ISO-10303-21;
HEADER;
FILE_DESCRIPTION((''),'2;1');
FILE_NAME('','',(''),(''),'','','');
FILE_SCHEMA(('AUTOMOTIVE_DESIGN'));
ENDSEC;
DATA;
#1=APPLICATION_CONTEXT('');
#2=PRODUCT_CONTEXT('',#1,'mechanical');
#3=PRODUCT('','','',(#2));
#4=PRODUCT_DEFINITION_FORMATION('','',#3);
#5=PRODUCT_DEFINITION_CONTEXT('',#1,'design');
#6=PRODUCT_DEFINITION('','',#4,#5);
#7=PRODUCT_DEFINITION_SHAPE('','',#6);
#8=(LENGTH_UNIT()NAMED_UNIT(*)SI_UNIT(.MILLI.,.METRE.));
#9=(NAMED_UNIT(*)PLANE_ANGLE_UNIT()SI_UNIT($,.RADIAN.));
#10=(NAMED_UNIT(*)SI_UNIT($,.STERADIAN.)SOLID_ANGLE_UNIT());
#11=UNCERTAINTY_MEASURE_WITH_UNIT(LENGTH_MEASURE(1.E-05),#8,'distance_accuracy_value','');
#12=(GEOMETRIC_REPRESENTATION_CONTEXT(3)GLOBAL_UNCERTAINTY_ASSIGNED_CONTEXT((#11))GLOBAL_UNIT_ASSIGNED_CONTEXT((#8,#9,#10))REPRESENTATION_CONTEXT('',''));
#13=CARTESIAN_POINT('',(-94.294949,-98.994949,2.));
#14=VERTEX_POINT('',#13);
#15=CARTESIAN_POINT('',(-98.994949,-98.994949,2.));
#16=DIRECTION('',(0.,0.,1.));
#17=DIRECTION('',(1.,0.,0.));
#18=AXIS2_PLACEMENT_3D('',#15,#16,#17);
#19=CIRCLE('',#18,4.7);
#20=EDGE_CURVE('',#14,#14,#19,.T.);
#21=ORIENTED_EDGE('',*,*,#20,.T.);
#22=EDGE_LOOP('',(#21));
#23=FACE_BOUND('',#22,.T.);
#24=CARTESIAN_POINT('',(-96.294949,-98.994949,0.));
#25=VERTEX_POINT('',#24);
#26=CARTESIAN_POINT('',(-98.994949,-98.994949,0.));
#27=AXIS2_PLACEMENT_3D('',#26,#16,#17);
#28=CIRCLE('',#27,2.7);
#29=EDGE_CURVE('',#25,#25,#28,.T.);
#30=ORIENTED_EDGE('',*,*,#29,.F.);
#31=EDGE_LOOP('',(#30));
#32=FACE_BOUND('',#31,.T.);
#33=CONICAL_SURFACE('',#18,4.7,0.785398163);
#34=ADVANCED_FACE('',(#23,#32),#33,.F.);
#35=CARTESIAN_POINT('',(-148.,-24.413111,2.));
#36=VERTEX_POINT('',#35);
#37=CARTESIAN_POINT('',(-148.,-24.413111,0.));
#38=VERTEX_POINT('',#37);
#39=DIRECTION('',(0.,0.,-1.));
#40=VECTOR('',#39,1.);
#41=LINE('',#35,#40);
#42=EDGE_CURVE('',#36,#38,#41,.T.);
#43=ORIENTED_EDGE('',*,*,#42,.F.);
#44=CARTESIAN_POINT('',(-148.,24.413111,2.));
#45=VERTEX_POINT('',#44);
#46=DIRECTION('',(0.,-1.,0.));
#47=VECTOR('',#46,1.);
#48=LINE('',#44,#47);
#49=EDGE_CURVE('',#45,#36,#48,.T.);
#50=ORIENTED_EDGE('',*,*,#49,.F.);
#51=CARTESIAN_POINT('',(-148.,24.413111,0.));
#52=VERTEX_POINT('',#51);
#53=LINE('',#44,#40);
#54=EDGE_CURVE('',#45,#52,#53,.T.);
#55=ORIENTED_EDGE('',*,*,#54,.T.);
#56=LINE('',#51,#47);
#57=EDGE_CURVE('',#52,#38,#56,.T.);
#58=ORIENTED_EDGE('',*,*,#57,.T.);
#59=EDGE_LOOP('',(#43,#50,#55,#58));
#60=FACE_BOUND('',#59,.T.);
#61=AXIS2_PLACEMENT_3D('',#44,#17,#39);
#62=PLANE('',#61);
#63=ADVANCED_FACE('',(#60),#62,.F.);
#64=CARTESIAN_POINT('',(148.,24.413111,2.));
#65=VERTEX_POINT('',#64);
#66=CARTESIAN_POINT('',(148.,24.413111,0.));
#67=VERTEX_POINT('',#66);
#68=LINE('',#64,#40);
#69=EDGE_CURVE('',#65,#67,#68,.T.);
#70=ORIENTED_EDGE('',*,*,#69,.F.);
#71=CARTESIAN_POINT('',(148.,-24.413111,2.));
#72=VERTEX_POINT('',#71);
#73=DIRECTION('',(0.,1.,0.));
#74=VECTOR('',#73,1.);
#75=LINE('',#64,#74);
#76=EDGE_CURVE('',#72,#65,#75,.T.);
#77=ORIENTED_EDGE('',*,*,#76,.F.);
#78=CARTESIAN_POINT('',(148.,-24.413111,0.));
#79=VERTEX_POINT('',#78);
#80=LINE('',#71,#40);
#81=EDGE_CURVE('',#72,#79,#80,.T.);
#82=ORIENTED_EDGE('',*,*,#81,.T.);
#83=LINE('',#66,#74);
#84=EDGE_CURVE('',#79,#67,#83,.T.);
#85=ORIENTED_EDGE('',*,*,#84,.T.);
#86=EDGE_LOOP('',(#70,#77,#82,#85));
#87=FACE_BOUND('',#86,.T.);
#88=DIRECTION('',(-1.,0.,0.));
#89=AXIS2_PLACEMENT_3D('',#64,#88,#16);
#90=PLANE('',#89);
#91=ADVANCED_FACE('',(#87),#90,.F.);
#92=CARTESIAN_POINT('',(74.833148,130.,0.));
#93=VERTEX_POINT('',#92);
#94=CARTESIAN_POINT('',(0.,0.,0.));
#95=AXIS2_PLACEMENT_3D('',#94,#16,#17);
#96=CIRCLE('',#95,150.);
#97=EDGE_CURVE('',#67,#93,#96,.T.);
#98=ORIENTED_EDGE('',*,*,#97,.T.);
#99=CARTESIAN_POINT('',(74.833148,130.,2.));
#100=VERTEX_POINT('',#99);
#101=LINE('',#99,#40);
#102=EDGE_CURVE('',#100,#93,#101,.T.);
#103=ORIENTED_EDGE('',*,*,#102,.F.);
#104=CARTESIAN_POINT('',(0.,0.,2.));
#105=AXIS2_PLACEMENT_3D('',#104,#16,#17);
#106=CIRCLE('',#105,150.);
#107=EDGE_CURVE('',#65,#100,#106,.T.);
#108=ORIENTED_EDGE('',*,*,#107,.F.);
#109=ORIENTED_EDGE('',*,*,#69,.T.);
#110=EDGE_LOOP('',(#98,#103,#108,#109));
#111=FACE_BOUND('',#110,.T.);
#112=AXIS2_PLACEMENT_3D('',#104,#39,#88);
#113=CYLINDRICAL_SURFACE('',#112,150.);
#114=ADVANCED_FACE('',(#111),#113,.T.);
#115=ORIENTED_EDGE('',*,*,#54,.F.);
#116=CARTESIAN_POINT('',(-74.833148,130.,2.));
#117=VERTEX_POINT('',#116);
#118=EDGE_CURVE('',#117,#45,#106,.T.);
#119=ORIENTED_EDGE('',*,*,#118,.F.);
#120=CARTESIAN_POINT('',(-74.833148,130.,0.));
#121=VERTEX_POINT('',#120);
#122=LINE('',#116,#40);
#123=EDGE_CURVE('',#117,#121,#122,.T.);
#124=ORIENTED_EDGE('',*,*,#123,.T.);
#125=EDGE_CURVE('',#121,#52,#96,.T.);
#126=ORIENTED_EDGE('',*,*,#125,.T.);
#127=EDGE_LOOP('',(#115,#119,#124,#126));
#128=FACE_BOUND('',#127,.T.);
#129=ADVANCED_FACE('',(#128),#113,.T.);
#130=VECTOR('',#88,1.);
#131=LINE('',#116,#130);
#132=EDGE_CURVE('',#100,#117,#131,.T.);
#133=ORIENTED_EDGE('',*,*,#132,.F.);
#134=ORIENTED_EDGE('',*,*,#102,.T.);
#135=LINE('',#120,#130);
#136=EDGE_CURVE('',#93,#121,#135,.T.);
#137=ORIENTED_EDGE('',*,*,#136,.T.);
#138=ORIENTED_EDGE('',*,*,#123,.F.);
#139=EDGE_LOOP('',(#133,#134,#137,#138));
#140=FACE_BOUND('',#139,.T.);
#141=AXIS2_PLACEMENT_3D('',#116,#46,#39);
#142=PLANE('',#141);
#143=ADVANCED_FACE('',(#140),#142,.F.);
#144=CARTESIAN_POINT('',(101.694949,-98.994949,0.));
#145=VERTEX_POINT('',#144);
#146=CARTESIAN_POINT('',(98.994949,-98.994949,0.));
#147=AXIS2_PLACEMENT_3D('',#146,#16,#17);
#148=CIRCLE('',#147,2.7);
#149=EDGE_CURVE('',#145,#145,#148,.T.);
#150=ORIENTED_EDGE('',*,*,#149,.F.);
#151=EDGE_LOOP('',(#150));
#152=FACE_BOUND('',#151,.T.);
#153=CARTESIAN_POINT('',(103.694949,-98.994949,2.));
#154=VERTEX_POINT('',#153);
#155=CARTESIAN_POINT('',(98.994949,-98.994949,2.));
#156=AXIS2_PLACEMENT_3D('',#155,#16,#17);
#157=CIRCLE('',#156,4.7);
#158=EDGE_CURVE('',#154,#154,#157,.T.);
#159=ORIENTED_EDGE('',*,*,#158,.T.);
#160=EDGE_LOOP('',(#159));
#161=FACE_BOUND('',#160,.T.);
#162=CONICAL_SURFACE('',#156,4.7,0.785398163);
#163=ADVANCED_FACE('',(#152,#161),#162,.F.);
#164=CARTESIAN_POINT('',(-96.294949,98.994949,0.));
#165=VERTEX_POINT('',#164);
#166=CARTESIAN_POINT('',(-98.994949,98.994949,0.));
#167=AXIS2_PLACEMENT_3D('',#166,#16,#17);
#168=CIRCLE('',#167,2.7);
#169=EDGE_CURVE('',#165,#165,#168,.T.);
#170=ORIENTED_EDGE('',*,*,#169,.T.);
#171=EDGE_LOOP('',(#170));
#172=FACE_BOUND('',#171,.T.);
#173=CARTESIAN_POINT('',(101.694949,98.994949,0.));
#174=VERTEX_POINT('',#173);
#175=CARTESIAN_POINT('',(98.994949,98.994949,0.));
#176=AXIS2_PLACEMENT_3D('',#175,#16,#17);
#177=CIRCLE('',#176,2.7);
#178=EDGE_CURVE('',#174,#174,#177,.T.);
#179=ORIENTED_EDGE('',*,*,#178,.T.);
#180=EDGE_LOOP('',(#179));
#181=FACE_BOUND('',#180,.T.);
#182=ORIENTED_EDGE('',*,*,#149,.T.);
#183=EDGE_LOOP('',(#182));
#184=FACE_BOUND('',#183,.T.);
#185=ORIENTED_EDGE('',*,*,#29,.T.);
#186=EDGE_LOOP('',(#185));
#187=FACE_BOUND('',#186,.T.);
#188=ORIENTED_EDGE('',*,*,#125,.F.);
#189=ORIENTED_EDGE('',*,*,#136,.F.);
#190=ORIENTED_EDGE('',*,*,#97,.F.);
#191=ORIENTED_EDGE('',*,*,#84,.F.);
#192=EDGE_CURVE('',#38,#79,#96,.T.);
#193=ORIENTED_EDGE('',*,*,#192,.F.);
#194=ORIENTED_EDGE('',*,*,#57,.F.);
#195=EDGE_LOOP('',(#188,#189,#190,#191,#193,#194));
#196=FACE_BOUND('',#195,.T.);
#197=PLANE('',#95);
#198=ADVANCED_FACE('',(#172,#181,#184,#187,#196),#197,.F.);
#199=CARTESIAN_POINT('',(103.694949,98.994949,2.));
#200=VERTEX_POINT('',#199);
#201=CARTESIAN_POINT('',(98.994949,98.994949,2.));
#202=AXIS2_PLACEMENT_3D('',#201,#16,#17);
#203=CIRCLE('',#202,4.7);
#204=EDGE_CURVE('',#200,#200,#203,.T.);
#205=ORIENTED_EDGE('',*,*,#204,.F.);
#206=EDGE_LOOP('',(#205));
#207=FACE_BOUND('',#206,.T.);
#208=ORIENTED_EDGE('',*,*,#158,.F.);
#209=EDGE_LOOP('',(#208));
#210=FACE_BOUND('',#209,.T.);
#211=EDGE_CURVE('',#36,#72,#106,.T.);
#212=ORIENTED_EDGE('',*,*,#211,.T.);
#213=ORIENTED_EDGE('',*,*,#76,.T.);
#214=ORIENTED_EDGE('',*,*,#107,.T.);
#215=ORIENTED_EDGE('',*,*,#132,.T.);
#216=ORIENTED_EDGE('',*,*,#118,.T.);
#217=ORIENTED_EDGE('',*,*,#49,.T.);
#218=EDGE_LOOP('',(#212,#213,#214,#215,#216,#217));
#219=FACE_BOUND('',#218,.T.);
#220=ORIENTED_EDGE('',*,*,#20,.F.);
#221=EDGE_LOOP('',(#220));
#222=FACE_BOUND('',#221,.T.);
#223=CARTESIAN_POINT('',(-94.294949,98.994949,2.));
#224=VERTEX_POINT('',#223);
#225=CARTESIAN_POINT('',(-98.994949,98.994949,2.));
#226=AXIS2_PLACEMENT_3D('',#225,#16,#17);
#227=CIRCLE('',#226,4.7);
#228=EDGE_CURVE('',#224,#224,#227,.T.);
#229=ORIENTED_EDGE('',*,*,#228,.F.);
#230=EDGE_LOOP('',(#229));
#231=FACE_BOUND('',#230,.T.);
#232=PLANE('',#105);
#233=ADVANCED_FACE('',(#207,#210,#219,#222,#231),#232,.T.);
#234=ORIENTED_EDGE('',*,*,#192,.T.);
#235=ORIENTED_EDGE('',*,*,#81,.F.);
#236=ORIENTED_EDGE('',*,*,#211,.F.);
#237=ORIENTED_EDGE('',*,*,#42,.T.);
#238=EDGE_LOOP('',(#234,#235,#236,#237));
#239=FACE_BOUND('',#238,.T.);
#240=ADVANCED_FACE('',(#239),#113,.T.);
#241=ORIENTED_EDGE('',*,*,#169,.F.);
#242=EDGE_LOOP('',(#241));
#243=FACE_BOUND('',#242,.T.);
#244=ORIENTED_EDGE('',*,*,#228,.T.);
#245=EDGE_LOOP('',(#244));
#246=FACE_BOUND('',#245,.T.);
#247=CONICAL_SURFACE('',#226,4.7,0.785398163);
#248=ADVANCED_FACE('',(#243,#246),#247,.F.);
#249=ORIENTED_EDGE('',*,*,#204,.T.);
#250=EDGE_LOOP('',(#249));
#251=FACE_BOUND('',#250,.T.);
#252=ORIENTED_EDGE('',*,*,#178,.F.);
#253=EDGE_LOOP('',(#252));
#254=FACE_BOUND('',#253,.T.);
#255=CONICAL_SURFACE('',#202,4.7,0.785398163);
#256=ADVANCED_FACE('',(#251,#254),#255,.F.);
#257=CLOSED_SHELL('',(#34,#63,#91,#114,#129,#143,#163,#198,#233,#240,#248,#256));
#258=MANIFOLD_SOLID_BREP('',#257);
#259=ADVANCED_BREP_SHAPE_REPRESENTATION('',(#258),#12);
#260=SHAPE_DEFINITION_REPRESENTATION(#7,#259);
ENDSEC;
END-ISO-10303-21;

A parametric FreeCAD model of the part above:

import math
import FreeCAD as App
import Part
import Sketcher

V = App.Vector
Q = App.Units.Quantity

doc = App.newDocument("Part")
params = doc.addObject("Spreadsheet::Sheet", "Params")
for row, (alias, value) in enumerate([
    ("sketch1_radius", "150 mm"),
    ("sketch1_diameter", "3.2 mm"),
    ("pad1_length", "2 mm"),
    ("sketch2_height", "2 mm"),
    ("sketch2_width", "4.7 mm"),
    ("sketch2_width2", "2.25 mm"),
    ("groove_angle", "360 deg"),
    ("linearpattern_pitch", "197.989899 mm"),
    ("linearpattern2_pitch", "197.989899 mm"),
    ("linearpattern3_pitch", "280 mm"),
], start=1):
    params.set(f"A{row}", alias)
    params.set(f"B{row}", "=" + value)
    params.setAlias(f"B{row}", alias)

body = doc.addObject("PartDesign::Body", "Body")

sketch1 = body.newObject("Sketcher::SketchObject", "Sketch")
sketch1.AttachmentSupport = (doc.getObject("XY_Plane"), [""])
sketch1.MapMode = "FlatFace"
sketch1.addGeometry([
    Part.LineSegment(V(74.8, 130, 0), V(-74.8, 130, 0)),
    Part.ArcOfCircle(Part.Circle(V(0, 0, 0), V(0, 0, 1), 150), math.radians(120), math.radians(171)),
    Part.LineSegment(V(-148, 24.4, 0), V(-148, -24.4, 0)),
    Part.ArcOfCircle(Part.Circle(V(0, 0, 0), V(0, 0, 1), 150), math.radians(-171), math.radians(-9)),
    Part.LineSegment(V(148, -24.4, 0), V(148, 24.4, 0)),
    Part.ArcOfCircle(Part.Circle(V(0, 0, 0), V(0, 0, 1), 150), math.radians(9), math.radians(60)),
    Part.Circle(V(99, -99, 0), V(0, 0, 1), 1.6),
    Part.Circle(V(-99, -99, 0), V(0, 0, 1), 1.6),
    Part.Circle(V(99, 99, 0), V(0, 0, 1), 1.6),
    Part.Circle(V(-99, 99, 0), V(0, 0, 1), 1.6),
], False)
sketch1.addConstraint([
    Sketcher.Constraint("Coincident", 0, 2, 1, 1),
    Sketcher.Constraint("Coincident", 1, 2, 2, 1),
    Sketcher.Constraint("Coincident", 2, 2, 3, 1),
    Sketcher.Constraint("Coincident", 3, 2, 4, 1),
    Sketcher.Constraint("Coincident", 4, 2, 5, 1),
    Sketcher.Constraint("Coincident", 5, 2, 0, 1),
    Sketcher.Constraint("Horizontal", 0),
    Sketcher.Constraint("Vertical", 2),
    Sketcher.Constraint("Vertical", 4),
    Sketcher.Constraint("Coincident", 1, 3, -1, 1),
    Sketcher.Constraint("Coincident", 3, 3, -1, 1),
    Sketcher.Constraint("Coincident", 5, 3, -1, 1),
    Sketcher.Constraint("Equal", 1, 3),
    Sketcher.Constraint("Equal", 3, 5),
    Sketcher.Constraint("Equal", 6, 7),
    Sketcher.Constraint("Equal", 7, 8),
    Sketcher.Constraint("Equal", 8, 9),
    Sketcher.Constraint("Symmetric", 7, 3, 8, 3, -1, 1),
    Sketcher.Constraint("Symmetric", 6, 3, 9, 3, -1, 1),
    Sketcher.Constraint("Symmetric", 6, 3, 7, 3, -2),
    Sketcher.Constraint("Horizontal", 2, 2, 3, 2),
    Sketcher.Constraint("Radius", 1, 150.0),
    Sketcher.Constraint("Diameter", 6, 3.2),
    Sketcher.Constraint("DistanceY", -1, 1, 0, 2, 130.0),
    Sketcher.Constraint("DistanceX", 1, 2, -1, 1, 148.0),
    Sketcher.Constraint("DistanceX", 7, 3, 6, 3, 197.989899),
    Sketcher.Constraint("DistanceY", 6, 3, 8, 3, 197.989899),
])
sketch1.setExpression("Constraints[21]", "Params.sketch1_radius")
sketch1.setExpression("Constraints[22]", "Params.sketch1_diameter")
pad1 = body.newObject("PartDesign::Pad", "Pad")
pad1.Profile = sketch1
pad1.setExpression("Length", "Params.pad1_length")

sketch2 = body.newObject("Sketcher::SketchObject", "Sketch001")
sketch2.AttachmentSupport = (doc.getObject("YZ_Plane"), [""])
sketch2.MapMode = "FlatFace"
sketch2.AttachmentOffset = App.Placement(V(0, 0, 98.994949), App.Rotation())
sketch2.addGeometry([
    Part.LineSegment(V(98.99, 0, 0), V(98.99, 2, 0)),
    Part.LineSegment(V(98.99, 2, 0), V(94.29, 2, 0)),
    Part.LineSegment(V(94.29, 2, 0), V(96.74, -0.45, 0)),
    Part.LineSegment(V(96.74, -0.45, 0), V(96.74, 0, 0)),
    Part.LineSegment(V(96.74, 0, 0), V(98.99, 0, 0)),
], False)
sketch2.addGeometry(Part.LineSegment(V(98.99, 2, 0), V(98.99, -0.45, 0)), True)
sketch2.addConstraint([
    Sketcher.Constraint("Coincident", 0, 2, 1, 1),
    Sketcher.Constraint("Coincident", 1, 2, 2, 1),
    Sketcher.Constraint("Coincident", 2, 2, 3, 1),
    Sketcher.Constraint("Coincident", 3, 2, 4, 1),
    Sketcher.Constraint("Coincident", 4, 2, 0, 1),
    Sketcher.Constraint("Vertical", 0),
    Sketcher.Constraint("Horizontal", 1),
    Sketcher.Constraint("Vertical", 3),
    Sketcher.Constraint("Horizontal", 4),
    Sketcher.Constraint("Vertical", 5),
    Sketcher.Constraint("Coincident", 5, 1, 0, 2),
    Sketcher.Constraint("PointOnObject", 3, 2, -1),
    Sketcher.Constraint("Horizontal", 2, 2, 5, 2),
    Sketcher.Constraint("DistanceY", 0, 1, 0, 2, 2.0),
    Sketcher.Constraint("Angle", 2, Q("-45 deg")),
    Sketcher.Constraint("DistanceX", 1, 2, 1, 1, 4.7),
    Sketcher.Constraint("DistanceX", 4, 1, 4, 2, 2.25),
    Sketcher.Constraint("DistanceX", -1, 1, 0, 2, 98.994949),
])
sketch2.setExpression("Constraints[13]", "Params.sketch2_height")
sketch2.setExpression("Constraints[15]", "Params.sketch2_width")
sketch2.setExpression("Constraints[16]", "Params.sketch2_width2")
groove = body.newObject("PartDesign::Groove", "Groove")
groove.Profile = sketch2
groove.ReferenceAxis = (sketch2, ["Axis0"])
groove.setExpression("Angle", "Params.groove_angle")
doc.recompute()

linearpattern = body.newObject("PartDesign::LinearPattern", "LinearPattern")
linearpattern.Originals = [groove]
linearpattern.Direction = (doc.getObject("X_Axis"), [""])
linearpattern.Mode = "offset"
linearpattern.setExpression("Offset", "Params.linearpattern_pitch")
linearpattern.Occurrences = 2
linearpattern.Reversed = True
body.Tip = linearpattern
doc.recompute()

linearpattern2 = body.newObject("PartDesign::LinearPattern", "LinearPattern001")
linearpattern2.Originals = [groove]
linearpattern2.Direction = (doc.getObject("Y_Axis"), [""])
linearpattern2.Mode = "offset"
linearpattern2.setExpression("Offset", "Params.linearpattern2_pitch")
linearpattern2.Occurrences = 2
linearpattern2.Reversed = True
body.Tip = linearpattern2
doc.recompute()

datumline = body.newObject("PartDesign::Line", "DatumLine")
datumline.Placement = App.Placement(V(0, 0, 0), App.Rotation(V(0, 0, 1), V(-0.707106781, -0.707106781, 0)))
linearpattern3 = body.newObject("PartDesign::LinearPattern", "LinearPattern002")
linearpattern3.Originals = [groove]
linearpattern3.Direction = (datumline, [""])
linearpattern3.Mode = "offset"
linearpattern3.setExpression("Offset", "Params.linearpattern3_pitch")
linearpattern3.Occurrences = 2
body.Tip = linearpattern3

doc.recompute()
